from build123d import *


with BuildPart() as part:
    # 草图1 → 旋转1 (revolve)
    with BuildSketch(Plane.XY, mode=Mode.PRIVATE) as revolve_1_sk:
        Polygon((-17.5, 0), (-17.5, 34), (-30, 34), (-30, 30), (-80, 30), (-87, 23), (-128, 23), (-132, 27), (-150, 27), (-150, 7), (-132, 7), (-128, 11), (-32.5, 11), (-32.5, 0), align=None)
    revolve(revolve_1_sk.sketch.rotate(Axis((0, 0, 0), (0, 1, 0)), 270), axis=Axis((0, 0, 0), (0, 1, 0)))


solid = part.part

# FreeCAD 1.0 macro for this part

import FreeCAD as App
import Part
import Sketcher

V = App.Vector
Q = App.Units.Quantity

doc = App.newDocument("Part")
body = doc.addObject("PartDesign::Body", "Body")

# Sketch on XY plane
sketch1 = doc.addObject("Sketcher::SketchObject", "Sketch")
body.addObject(sketch1)
sketch1.AttachmentSupport = (doc.XY_Plane, [""])
sketch1.MapMode = "FlatFace"
sketch1.addGeometry([
    Part.LineSegment(V(-17.5, 0, 0), V(-17.5, 34, 0)),  # 0
    Part.LineSegment(V(-17.5, 34, 0), V(-30, 34, 0)),  # 1
    Part.LineSegment(V(-30, 34, 0), V(-30, 30, 0)),  # 2
    Part.LineSegment(V(-30, 30, 0), V(-80, 30, 0)),  # 3
    Part.LineSegment(V(-80, 30, 0), V(-87, 23, 0)),  # 4
    Part.LineSegment(V(-87, 23, 0), V(-128, 23, 0)),  # 5
    Part.LineSegment(V(-128, 23, 0), V(-132, 27, 0)),  # 6
    Part.LineSegment(V(-132, 27, 0), V(-150, 27, 0)),  # 7
    Part.LineSegment(V(-150, 27, 0), V(-150, 7, 0)),  # 8
    Part.LineSegment(V(-150, 7, 0), V(-132, 7, 0)),  # 9
    Part.LineSegment(V(-132, 7, 0), V(-128, 11, 0)),  # 10
    Part.LineSegment(V(-128, 11, 0), V(-32.5, 11, 0)),  # 11
    Part.LineSegment(V(-32.5, 11, 0), V(-32.5, 0, 0)),  # 12
    Part.LineSegment(V(-32.5, 0, 0), V(-17.5, 0, 0)),  # 13
], False)
sketch1.addConstraint([
    Sketcher.Constraint("Coincident", 0, 2, 1, 1),
    Sketcher.Constraint("Coincident", 1, 2, 2, 1),
    Sketcher.Constraint("Coincident", 2, 2, 3, 1),
    Sketcher.Constraint("Coincident", 3, 2, 4, 1),
    Sketcher.Constraint("Coincident", 4, 2, 5, 1),
    Sketcher.Constraint("Coincident", 5, 2, 6, 1),
    Sketcher.Constraint("Coincident", 6, 2, 7, 1),
    Sketcher.Constraint("Coincident", 7, 2, 8, 1),
    Sketcher.Constraint("Coincident", 8, 2, 9, 1),
    Sketcher.Constraint("Coincident", 9, 2, 10, 1),
    Sketcher.Constraint("Coincident", 10, 2, 11, 1),
    Sketcher.Constraint("Coincident", 11, 2, 12, 1),
    Sketcher.Constraint("Coincident", 12, 2, 13, 1),
    Sketcher.Constraint("Coincident", 13, 2, 0, 1),
    Sketcher.Constraint("Vertical", 0),
    Sketcher.Constraint("Horizontal", 1),
    Sketcher.Constraint("Vertical", 2),
    Sketcher.Constraint("Horizontal", 3),
    Sketcher.Constraint("Horizontal", 5),
    Sketcher.Constraint("Horizontal", 7),
    Sketcher.Constraint("Vertical", 8),
    Sketcher.Constraint("Horizontal", 9),
    Sketcher.Constraint("Horizontal", 11),
    Sketcher.Constraint("Vertical", 12),
    Sketcher.Constraint("Horizontal", 13),
    Sketcher.Constraint("PointOnObject", 12, 2, -1),
    Sketcher.Constraint("Perpendicular", 4, 6),
    Sketcher.Constraint("Perpendicular", 6, 10),
    Sketcher.Constraint("Vertical", 6, 2, 9, 2),
    Sketcher.Constraint("Vertical", 5, 2, 10, 2),
    Sketcher.Constraint("Equal", 6, 10),
    Sketcher.Constraint("DistanceX", 3, 2, 3, 1, Q("50 mm")),
    Sketcher.Constraint("DistanceX", 5, 2, 5, 1, Q("41 mm")),
    Sketcher.Constraint("DistanceX", 7, 2, 7, 1, Q("18 mm")),
    Sketcher.Constraint("DistanceX", 13, 1, 13, 2, Q("15 mm")),
    Sketcher.Constraint("DistanceY", 0, 1, 0, 2, Q("34 mm")),
    Sketcher.Constraint("DistanceY", 2, 2, 2, 1, Q("4 mm")),
    Sketcher.Constraint("DistanceY", 8, 2, 8, 1, Q("20 mm")),
    Sketcher.Constraint("DistanceY", 12, 2, 12, 1, Q("11 mm")),
    Sketcher.Constraint("DistanceX", 1, 2, 1, 1, Q("12.5 mm")),
    Sketcher.Constraint("DistanceX", 11, 1, 11, 2, Q("95.5 mm")),
    Sketcher.Constraint("DistanceX", 1, 2, -1, 1, Q("30 mm")),
])
revolution = doc.addObject("PartDesign::Revolution", "Revolution")
body.addObject(revolution)
revolution.Profile = sketch1
revolution.ReferenceAxis = (sketch1, ["V_Axis"])
revolution.Angle = 360

doc.recompute()
